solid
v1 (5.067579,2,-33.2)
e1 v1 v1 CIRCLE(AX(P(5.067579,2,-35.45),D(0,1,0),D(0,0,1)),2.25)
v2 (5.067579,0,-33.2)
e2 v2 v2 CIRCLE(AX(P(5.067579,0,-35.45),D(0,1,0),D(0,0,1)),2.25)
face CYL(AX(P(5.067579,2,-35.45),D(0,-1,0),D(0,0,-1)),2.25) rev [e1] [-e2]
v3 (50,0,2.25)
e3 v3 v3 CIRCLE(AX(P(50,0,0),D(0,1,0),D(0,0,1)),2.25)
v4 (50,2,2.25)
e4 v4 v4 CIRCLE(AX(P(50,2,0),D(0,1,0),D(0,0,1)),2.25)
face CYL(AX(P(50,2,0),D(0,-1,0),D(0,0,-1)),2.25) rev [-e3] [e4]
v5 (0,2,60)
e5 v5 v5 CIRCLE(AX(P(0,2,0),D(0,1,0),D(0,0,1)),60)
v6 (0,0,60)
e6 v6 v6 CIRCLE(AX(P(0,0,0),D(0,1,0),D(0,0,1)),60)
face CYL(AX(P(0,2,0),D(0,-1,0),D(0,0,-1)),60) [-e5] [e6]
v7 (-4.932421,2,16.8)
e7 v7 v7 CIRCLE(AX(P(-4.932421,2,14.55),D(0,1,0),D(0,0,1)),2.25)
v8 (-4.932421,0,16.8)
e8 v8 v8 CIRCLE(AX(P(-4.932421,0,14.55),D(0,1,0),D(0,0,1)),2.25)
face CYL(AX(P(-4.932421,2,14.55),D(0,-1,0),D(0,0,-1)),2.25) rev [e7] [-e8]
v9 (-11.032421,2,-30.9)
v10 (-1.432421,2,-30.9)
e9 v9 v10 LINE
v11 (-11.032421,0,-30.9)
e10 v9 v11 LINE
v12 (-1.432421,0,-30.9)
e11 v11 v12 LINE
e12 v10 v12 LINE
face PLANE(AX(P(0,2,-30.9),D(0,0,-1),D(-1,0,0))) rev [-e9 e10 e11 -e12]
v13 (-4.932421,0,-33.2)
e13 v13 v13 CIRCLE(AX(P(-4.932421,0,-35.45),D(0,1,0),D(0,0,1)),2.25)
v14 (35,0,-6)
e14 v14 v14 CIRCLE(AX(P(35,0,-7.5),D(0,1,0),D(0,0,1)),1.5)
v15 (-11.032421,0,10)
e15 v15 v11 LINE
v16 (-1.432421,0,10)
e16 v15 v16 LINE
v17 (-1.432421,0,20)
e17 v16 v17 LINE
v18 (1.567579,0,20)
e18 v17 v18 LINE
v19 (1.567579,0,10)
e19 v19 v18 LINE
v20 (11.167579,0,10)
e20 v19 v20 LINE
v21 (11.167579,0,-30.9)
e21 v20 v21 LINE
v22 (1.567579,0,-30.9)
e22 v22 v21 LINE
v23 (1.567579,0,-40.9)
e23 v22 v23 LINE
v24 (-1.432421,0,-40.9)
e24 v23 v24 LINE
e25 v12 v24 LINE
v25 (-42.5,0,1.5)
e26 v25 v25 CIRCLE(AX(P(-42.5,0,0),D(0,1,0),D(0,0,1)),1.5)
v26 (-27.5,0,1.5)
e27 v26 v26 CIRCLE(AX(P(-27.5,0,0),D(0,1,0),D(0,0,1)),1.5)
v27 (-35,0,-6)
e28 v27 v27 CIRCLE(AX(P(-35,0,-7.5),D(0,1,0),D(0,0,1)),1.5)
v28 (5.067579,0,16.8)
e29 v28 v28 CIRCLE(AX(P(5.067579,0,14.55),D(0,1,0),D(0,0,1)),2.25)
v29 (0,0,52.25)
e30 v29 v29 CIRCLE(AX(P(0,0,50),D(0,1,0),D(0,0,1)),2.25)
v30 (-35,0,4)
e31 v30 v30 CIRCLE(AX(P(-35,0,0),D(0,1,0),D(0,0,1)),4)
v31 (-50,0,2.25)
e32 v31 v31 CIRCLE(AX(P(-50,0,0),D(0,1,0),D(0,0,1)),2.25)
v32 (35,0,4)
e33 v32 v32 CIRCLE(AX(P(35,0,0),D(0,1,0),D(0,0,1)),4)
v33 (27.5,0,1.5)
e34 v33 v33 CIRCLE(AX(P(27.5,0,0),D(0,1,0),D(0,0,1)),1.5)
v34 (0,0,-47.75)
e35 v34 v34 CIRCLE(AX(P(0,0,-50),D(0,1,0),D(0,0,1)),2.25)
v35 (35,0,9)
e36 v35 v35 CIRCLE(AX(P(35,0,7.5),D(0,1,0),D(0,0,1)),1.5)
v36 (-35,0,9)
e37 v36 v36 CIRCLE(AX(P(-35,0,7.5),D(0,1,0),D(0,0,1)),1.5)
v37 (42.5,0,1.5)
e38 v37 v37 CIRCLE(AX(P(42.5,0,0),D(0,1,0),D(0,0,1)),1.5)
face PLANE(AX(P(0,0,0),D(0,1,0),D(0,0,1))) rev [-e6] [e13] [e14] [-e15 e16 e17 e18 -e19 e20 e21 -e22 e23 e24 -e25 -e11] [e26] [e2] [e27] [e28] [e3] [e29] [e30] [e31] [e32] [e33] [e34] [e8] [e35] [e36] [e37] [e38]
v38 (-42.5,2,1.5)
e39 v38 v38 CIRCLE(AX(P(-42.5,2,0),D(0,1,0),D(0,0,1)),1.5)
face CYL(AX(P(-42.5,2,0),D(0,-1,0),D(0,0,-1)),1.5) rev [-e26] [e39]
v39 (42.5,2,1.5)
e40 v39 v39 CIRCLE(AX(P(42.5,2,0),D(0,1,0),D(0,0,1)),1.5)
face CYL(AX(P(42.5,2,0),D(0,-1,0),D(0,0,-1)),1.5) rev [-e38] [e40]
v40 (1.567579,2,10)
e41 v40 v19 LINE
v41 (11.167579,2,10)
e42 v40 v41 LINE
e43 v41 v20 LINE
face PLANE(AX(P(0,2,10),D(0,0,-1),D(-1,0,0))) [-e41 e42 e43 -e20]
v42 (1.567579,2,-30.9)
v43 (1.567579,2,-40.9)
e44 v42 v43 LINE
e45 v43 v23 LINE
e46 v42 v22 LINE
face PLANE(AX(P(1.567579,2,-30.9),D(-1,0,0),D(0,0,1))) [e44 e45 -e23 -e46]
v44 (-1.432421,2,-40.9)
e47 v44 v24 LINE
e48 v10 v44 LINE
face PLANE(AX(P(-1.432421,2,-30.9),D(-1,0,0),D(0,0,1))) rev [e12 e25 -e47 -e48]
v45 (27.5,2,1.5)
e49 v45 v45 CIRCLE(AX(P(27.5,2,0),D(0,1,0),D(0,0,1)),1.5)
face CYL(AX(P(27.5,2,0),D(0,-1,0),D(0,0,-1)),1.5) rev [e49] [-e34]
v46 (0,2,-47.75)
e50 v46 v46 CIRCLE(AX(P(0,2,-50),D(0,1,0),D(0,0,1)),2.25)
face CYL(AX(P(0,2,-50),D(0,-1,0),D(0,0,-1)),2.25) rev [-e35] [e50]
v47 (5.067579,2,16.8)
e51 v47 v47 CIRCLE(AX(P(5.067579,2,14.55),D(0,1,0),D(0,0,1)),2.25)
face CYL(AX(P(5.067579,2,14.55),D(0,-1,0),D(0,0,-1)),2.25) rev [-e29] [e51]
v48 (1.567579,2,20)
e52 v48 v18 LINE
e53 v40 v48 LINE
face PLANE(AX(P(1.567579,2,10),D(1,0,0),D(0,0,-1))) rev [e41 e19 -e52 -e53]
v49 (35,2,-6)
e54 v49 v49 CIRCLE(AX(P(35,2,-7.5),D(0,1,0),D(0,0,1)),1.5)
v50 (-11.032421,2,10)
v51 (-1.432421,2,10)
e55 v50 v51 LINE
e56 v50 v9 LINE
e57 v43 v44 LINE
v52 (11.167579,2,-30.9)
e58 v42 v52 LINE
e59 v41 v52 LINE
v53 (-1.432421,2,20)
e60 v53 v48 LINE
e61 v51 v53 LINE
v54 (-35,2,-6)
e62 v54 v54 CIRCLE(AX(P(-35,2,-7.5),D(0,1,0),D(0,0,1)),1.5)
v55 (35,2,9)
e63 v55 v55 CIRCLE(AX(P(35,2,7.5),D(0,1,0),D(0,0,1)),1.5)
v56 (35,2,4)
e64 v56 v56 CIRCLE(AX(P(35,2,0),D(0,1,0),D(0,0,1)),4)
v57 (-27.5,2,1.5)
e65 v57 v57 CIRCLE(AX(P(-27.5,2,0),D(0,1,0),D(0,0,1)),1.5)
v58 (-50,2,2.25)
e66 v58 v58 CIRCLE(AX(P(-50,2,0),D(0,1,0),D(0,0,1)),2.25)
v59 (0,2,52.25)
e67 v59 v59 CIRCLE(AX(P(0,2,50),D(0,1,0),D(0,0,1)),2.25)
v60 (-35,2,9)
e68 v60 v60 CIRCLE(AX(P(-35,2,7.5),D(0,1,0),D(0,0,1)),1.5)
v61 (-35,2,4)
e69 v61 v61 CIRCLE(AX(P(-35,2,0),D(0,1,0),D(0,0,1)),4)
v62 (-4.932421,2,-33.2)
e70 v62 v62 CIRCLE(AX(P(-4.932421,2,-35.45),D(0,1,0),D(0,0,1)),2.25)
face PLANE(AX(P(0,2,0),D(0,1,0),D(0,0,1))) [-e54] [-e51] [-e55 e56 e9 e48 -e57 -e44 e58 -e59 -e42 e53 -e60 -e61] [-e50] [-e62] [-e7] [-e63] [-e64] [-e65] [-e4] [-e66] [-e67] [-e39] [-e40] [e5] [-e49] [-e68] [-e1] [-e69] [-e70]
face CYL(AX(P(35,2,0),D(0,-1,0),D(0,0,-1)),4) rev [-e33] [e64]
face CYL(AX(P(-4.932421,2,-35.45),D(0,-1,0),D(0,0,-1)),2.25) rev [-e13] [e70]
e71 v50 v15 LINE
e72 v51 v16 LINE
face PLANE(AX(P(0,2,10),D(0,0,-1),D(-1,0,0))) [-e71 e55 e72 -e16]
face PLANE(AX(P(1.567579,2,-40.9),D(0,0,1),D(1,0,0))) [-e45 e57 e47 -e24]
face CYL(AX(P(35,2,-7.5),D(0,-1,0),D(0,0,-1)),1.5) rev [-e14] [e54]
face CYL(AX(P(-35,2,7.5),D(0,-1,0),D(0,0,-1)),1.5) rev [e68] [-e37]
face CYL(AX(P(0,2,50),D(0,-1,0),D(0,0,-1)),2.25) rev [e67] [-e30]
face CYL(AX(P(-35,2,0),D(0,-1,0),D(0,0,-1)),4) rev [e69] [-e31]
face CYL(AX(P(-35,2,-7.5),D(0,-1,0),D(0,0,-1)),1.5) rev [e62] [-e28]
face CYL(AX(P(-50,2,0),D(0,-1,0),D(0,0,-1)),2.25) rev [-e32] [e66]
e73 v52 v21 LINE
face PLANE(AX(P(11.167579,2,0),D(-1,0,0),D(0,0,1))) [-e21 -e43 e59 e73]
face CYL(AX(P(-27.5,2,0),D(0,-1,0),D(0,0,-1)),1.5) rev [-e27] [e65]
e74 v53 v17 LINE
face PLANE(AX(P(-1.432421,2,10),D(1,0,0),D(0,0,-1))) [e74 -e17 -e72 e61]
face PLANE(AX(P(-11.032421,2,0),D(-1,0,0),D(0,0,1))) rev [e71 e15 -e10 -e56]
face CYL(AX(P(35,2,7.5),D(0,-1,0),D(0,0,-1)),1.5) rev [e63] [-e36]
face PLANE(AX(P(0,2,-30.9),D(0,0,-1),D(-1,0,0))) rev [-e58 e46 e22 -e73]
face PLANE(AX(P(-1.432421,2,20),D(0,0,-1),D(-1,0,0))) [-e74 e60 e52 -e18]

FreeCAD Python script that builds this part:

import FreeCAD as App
import Part
import Sketcher

V = App.Vector


def add_polygon(sketch, points):
    """Adds a closed chain of lines whose ends are joined by coincident constraints."""
    first, n = sketch.GeometryCount, len(points)
    for a, b in zip(points, points[1:] + points[:1]):
        sketch.addGeometry(Part.LineSegment(App.Vector(*a, 0), App.Vector(*b, 0)), False)
    for i in range(n):
        sketch.addConstraint(Sketcher.Constraint("Coincident", first + i, 2, first + (i + 1) % n, 1))

doc = App.newDocument("Part")
body = doc.addObject("PartDesign::Body", "Body")

# Sketch on XZ plane
sketch1 = body.newObject("Sketcher::SketchObject", "Sketch")
sketch1.AttachmentSupport = (doc.getObject("XZ_Plane"), [""])
sketch1.MapMode = "FlatFace"
sketch1.addGeometry(Part.Circle(V(0, 0, 0), V(0, 0, 1), 60), False)  # 0
sketch1.addGeometry(Part.Circle(V(-35, -7.5, 0), V(0, 0, 1), 1.5), False)  # 1
sketch1.addGeometry(Part.Circle(V(0, -50, 0), V(0, 0, 1), 2.25), False)  # 2
sketch1.addGeometry(Part.Circle(V(-4.932421, -35.45, 0), V(0, 0, 1), 2.25), False)  # 3
sketch1.addGeometry(Part.Circle(V(-50, 0, 0), V(0, 0, 1), 2.25), False)  # 4
sketch1.addGeometry(Part.Circle(V(-42.5, 0, 0), V(0, 0, 1), 1.5), False)  # 5
sketch1.addGeometry(Part.Circle(V(-35, 0, 0), V(0, 0, 1), 4), False)  # 6
sketch1.addGeometry(Part.Circle(V(-35, 7.5, 0), V(0, 0, 1), 1.5), False)  # 7
sketch1.addGeometry(Part.Circle(V(-27.5, 0, 0), V(0, 0, 1), 1.5), False)  # 8
sketch1.addGeometry(Part.Circle(V(-4.932421, 14.55, 0), V(0, 0, 1), 2.25), False)  # 9
sketch1.addGeometry(Part.Circle(V(5.067579, -35.45, 0), V(0, 0, 1), 2.25), False)  # 10
add_polygon(sketch1, [(11.167579, 10), (-11.032421, 10), (-11.032421, -30.9), (11.167579, -30.9)])  # lines 11-14
sketch1.addGeometry(Part.Circle(V(35, -7.5, 0), V(0, 0, 1), 1.5), False)  # 15
sketch1.addGeometry(Part.Circle(V(35, 0, 0), V(0, 0, 1), 4), False)  # 16
sketch1.addGeometry(Part.Circle(V(42.5, 0, 0), V(0, 0, 1), 1.5), False)  # 17
sketch1.addGeometry(Part.Circle(V(50, 0, 0), V(0, 0, 1), 2.25), False)  # 18
sketch1.addGeometry(Part.Circle(V(5.067579, 14.55, 0), V(0, 0, 1), 2.25), False)  # 19
sketch1.addGeometry(Part.Circle(V(0, 50, 0), V(0, 0, 1), 2.25), False)  # 20
sketch1.addGeometry(Part.Circle(V(27.5, 0, 0), V(0, 0, 1), 1.5), False)  # 21
sketch1.addGeometry(Part.Circle(V(35, 7.5, 0), V(0, 0, 1), 1.5), False)  # 22
sketch1.addConstraint(Sketcher.Constraint("Horizontal", 11))
sketch1.addConstraint(Sketcher.Constraint("Vertical", 12))
sketch1.addConstraint(Sketcher.Constraint("Horizontal", 13))
sketch1.addConstraint(Sketcher.Constraint("Vertical", 14))
sketch1.addConstraint(Sketcher.Constraint("Coincident", 0, 3, -1, 1))
sketch1.addConstraint(Sketcher.Constraint("Equal", 2, 3))
sketch1.addConstraint(Sketcher.Constraint("Equal", 3, 4))
sketch1.addConstraint(Sketcher.Constraint("Equal", 1, 5))
sketch1.addConstraint(Sketcher.Constraint("Equal", 5, 7))
sketch1.addConstraint(Sketcher.Constraint("Equal", 7, 8))
sketch1.addConstraint(Sketcher.Constraint("Equal", 4, 9))
sketch1.addConstraint(Sketcher.Constraint("Equal", 9, 10))
sketch1.addConstraint(Sketcher.Constraint("Equal", 8, 15))
sketch1.addConstraint(Sketcher.Constraint("Equal", 6, 16))
sketch1.addConstraint(Sketcher.Constraint("Equal", 15, 17))
sketch1.addConstraint(Sketcher.Constraint("Equal", 10, 18))
sketch1.addConstraint(Sketcher.Constraint("Equal", 18, 19))
sketch1.addConstraint(Sketcher.Constraint("Equal", 19, 20))
sketch1.addConstraint(Sketcher.Constraint("Equal", 17, 21))
sketch1.addConstraint(Sketcher.Constraint("Equal", 21, 22))
sketch1.addConstraint(Sketcher.Constraint("Symmetric", 7, 3, 15, 3, -1, 1))
sketch1.addConstraint(Sketcher.Constraint("Symmetric", 6, 3, 16, 3, -1, 1))
sketch1.addConstraint(Sketcher.Constraint("Symmetric", 5, 3, 17, 3, -1, 1))
sketch1.addConstraint(Sketcher.Constraint("Symmetric", 4, 3, 18, 3, -1, 1))
sketch1.addConstraint(Sketcher.Constraint("Symmetric", 2, 3, 20, 3, -1, 1))
sketch1.addConstraint(Sketcher.Constraint("Symmetric", 8, 3, 21, 3, -1, 1))
sketch1.addConstraint(Sketcher.Constraint("Symmetric", 1, 3, 22, 3, -1, 1))
sketch1.addConstraint(Sketcher.Constraint("Symmetric", 1, 3, 15, 3, -2))
sketch1.addConstraint(Sketcher.Constraint("PointOnObject", 2, 3, -2))
sketch1.addConstraint(Sketcher.Constraint("PointOnObject", 4, 3, -1))
sketch1.addConstraint(Sketcher.Constraint("PointOnObject", 5, 3, -1))
sketch1.addConstraint(Sketcher.Constraint("PointOnObject", 6, 3, -1))
sketch1.addConstraint(Sketcher.Constraint("PointOnObject", 8, 3, -1))
sketch1.addConstraint(Sketcher.Constraint("Horizontal", 3, 3, 10, 3))
sketch1.addConstraint(Sketcher.Constraint("Horizontal", 9, 3, 19, 3))
sketch1.addConstraint(Sketcher.Constraint("Vertical", 1, 3, 6, 3))
sketch1.addConstraint(Sketcher.Constraint("Vertical", 3, 3, 9, 3))
sketch1.addConstraint(Sketcher.Constraint("Vertical", 10, 3, 19, 3))
sketch1.addConstraint(Sketcher.Constraint("Diameter", 0, 120.0))
sketch1.addConstraint(Sketcher.Constraint("Diameter", 1, 3.0))
sketch1.addConstraint(Sketcher.Constraint("Diameter", 6, 8.0))
sketch1.addConstraint(Sketcher.Constraint("Diameter", 2, 4.5))
sketch1.addConstraint(Sketcher.Constraint("DistanceX", 11, 2, 11, 1, 22.2))
sketch1.addConstraint(Sketcher.Constraint("DistanceY", 12, 2, 12, 1, 40.9))
sketch1.addConstraint(Sketcher.Constraint("DistanceX", 1, 3, -1, 1, 35.0))
sketch1.addConstraint(Sketcher.Constraint("DistanceY", 2, 3, -1, 1, 50.0))
sketch1.addConstraint(Sketcher.Constraint("DistanceX", 4, 3, -1, 1, 50.0))
sketch1.addConstraint(Sketcher.Constraint("DistanceY", -1, 1, 11, 2, 10.0))
sketch1.addConstraint(Sketcher.Constraint("DistanceY", 1, 3, 7, 3, 15.0))
sketch1.addConstraint(Sketcher.Constraint("DistanceX", 5, 3, 8, 3, 15.0))
sketch1.addConstraint(Sketcher.Constraint("DistanceX", 3, 3, 10, 3, 10.0))
sketch1.addConstraint(Sketcher.Constraint("DistanceX", 5, 3, -1, 1, 42.5))
sketch1.addConstraint(Sketcher.Constraint("DistanceX", 11, 2, 9, 3, 6.1))
sketch1.addConstraint(Sketcher.Constraint("DistanceY", 3, 3, -1, 1, 35.45))
sketch1.addConstraint(Sketcher.Constraint("DistanceY", -1, 1, 9, 3, 14.55))
sketch1.addConstraint(Sketcher.Constraint("DistanceX", 3, 3, -1, 1, 4.932421))
pad1 = body.newObject("PartDesign::Pad", "Pad")
pad1.Profile = sketch1
pad1.Length = 2
pad1.Reversed = True

# Sketch on XZ plane
sketch2 = body.newObject("Sketcher::SketchObject", "Sketch001")
sketch2.AttachmentSupport = (doc.getObject("XZ_Plane"), [""])
sketch2.MapMode = "FlatFace"
add_polygon(sketch2, [(-1.432421, 20), (-1.432421, 10), (1.567579, 10), (1.567579, 20)])  # lines 0-3
add_polygon(sketch2, [(-1.432421, -30.9), (-1.432421, -40.9), (1.567579, -40.9), (1.567579, -30.9)])  # lines 4-7
sketch2.addConstraint(Sketcher.Constraint("Vertical", 0))
sketch2.addConstraint(Sketcher.Constraint("Horizontal", 1))
sketch2.addConstraint(Sketcher.Constraint("Vertical", 2))
sketch2.addConstraint(Sketcher.Constraint("Horizontal", 3))
sketch2.addConstraint(Sketcher.Constraint("Vertical", 4))
sketch2.addConstraint(Sketcher.Constraint("Horizontal", 5))
sketch2.addConstraint(Sketcher.Constraint("Vertical", 6))
sketch2.addConstraint(Sketcher.Constraint("Horizontal", 7))
sketch2.addConstraint(Sketcher.Constraint("Vertical", 3, 2, 4, 2))
sketch2.addConstraint(Sketcher.Constraint("Vertical", 2, 2, 5, 2))
sketch2.addConstraint(Sketcher.Constraint("Equal", 2, 4))
sketch2.addConstraint(Sketcher.Constraint("DistanceX", 1, 1, 1, 2, 3.0))
sketch2.addConstraint(Sketcher.Constraint("DistanceY", 0, 2, 0, 1, 10.0))
sketch2.addConstraint(Sketcher.Constraint("DistanceY", -1, 1, 0, 2, 10.0))
sketch2.addConstraint(Sketcher.Constraint("DistanceY", 4, 2, -1, 1, 40.9))
sketch2.addConstraint(Sketcher.Constraint("DistanceX", 0, 2, -1, 1, 1.432421))
pocket1 = body.newObject("PartDesign::Pocket", "Pocket")
pocket1.Profile = sketch2
pocket1.Type = "ThroughAll"

doc.recompute()
